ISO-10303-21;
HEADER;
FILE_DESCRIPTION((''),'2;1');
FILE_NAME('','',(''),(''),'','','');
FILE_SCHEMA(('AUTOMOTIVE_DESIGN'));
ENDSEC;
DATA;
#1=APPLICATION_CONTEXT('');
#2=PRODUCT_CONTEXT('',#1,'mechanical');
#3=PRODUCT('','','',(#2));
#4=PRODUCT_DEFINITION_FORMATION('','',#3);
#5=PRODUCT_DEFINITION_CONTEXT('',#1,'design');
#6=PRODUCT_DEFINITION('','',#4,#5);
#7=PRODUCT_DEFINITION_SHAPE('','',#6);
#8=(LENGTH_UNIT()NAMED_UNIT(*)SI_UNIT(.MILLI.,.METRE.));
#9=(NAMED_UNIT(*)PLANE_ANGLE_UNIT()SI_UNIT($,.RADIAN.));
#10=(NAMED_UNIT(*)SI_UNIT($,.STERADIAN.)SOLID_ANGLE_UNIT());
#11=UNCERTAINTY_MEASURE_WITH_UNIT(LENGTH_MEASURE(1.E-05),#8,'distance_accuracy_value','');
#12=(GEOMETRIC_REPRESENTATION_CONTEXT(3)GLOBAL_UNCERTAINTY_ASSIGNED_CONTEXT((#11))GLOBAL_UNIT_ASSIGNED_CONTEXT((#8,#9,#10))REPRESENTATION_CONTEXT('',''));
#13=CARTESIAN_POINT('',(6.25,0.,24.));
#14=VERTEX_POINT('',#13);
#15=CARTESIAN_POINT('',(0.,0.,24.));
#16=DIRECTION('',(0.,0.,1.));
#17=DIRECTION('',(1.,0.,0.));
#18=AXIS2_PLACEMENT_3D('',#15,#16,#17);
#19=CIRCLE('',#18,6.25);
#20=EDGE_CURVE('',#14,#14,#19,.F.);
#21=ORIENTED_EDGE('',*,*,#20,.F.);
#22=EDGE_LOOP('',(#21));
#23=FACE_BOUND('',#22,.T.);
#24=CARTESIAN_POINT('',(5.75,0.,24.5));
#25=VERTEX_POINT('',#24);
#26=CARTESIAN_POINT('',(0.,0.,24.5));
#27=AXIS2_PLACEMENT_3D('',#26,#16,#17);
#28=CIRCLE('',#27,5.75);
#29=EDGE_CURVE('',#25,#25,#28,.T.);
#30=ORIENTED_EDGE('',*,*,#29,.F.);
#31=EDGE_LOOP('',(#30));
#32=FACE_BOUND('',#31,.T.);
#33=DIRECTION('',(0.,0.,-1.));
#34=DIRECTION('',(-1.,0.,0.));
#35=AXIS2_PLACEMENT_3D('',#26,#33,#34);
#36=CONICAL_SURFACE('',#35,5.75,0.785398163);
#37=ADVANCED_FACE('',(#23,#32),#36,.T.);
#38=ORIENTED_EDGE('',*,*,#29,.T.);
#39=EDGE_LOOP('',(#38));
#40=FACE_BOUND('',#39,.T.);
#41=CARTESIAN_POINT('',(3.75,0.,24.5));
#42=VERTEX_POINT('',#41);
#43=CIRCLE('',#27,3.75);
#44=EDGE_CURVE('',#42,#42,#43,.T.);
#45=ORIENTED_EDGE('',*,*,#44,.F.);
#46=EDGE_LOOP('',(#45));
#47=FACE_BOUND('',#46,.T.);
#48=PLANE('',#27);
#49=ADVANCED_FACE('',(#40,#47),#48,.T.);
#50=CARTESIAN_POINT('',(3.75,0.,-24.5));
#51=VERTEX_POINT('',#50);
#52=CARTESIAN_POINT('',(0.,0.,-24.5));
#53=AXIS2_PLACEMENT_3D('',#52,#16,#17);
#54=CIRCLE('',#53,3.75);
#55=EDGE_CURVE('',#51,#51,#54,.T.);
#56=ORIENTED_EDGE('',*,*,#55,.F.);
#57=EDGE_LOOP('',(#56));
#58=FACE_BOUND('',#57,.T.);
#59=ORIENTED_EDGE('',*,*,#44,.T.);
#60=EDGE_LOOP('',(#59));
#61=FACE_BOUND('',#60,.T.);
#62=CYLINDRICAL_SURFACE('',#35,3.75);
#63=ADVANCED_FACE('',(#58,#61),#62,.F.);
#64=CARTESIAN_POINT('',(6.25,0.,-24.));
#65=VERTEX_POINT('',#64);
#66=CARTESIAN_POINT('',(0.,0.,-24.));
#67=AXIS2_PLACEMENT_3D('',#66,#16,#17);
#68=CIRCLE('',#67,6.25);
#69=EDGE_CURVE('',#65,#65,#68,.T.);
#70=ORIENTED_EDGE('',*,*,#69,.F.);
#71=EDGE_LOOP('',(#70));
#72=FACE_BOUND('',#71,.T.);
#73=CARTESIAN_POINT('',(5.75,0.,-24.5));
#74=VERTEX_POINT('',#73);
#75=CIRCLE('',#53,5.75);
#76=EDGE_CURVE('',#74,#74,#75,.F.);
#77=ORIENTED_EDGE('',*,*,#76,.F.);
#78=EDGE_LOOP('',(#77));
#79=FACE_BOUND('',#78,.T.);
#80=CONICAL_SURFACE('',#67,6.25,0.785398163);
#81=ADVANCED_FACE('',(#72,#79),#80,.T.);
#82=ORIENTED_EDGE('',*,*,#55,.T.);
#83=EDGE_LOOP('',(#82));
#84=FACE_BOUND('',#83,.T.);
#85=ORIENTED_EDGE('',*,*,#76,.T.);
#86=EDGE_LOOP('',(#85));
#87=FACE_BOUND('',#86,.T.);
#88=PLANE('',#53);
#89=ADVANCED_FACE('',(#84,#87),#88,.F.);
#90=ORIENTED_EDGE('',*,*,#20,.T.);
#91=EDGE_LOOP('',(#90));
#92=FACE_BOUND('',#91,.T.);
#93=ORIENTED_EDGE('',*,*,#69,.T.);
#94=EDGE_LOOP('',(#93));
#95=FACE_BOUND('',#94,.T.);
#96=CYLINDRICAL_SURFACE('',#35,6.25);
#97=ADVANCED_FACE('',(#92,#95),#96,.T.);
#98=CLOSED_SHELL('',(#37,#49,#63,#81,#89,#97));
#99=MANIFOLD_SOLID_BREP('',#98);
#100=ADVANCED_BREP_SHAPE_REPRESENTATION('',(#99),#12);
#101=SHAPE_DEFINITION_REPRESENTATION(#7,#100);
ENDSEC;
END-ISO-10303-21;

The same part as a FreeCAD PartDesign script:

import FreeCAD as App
import Part
import Sketcher

V = App.Vector
Q = App.Units.Quantity


def edges_at(feature, points):
    """Names of the edges that pass closest to the given points."""
    edges = feature.Shape.Edges
    near = lambda p: min(range(len(edges)), key=lambda i: edges[i].distToShape(Part.Vertex(*p))[0])
    return sorted({f"Edge{near(p) + 1}" for p in points})

doc = App.newDocument("Part")
body = doc.addObject("PartDesign::Body", "Body")

# Sketch on XY plane
sketch1 = body.newObject("Sketcher::SketchObject", "Sketch")
sketch1.AttachmentSupport = (doc.getObject("XY_Plane"), [""])
sketch1.MapMode = "FlatFace"
sketch1.addGeometry([
    Part.Circle(V(0, 0, 0), V(0, 0, 1), 6.2),
    Part.Circle(V(0, 0, 0), V(0, 0, 1), 3.8),
], False)
sketch1.addConstraint([
    Sketcher.Constraint("Coincident", 0, 3, -1, 1),
    Sketcher.Constraint("Coincident", 1, 3, -1, 1),
    Sketcher.Constraint("Diameter", 0, Q("12.5 mm")),
    Sketcher.Constraint("Diameter", 1, Q("7.5 mm")),
])
pad1 = body.newObject("PartDesign::Pad", "Pad")
pad1.Profile = sketch1
pad1.Length = 49
pad1.Midplane = True
doc.recompute()

chamfer = body.newObject("PartDesign::Chamfer", "Chamfer")
chamfer.Base = (pad1, edges_at(pad1, [(-6.25, 0, -24.5), (-6.25, 0, 24.5)]))
chamfer.Size = 0.5

doc.recompute()
